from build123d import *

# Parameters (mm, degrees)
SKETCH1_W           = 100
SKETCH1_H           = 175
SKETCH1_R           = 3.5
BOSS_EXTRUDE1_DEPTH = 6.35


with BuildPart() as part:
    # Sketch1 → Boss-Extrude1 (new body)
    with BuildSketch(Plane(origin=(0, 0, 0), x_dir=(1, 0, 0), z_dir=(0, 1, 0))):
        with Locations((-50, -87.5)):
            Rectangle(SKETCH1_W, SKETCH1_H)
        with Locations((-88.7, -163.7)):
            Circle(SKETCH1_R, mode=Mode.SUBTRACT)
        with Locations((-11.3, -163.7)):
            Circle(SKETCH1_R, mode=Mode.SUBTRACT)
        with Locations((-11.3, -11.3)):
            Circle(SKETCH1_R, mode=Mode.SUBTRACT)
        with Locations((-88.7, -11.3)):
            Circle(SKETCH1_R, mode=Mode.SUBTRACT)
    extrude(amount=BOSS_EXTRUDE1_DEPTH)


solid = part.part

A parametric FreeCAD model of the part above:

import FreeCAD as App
import Part
import Sketcher
from FreeCAD import Vector
Q = App.Units.Quantity


def add_polygon(sketch, points):
    """Adds a closed chain of lines whose ends are joined by coincident constraints."""
    first, n = sketch.GeometryCount, len(points)
    for a, b in zip(points, points[1:] + points[:1]):
        sketch.addGeometry(Part.LineSegment(App.Vector(*a, 0), App.Vector(*b, 0)), False)
    for i in range(n):
        sketch.addConstraint(Sketcher.Constraint("Coincident", first + i, 2, first + (i + 1) % n, 1))

doc = App.newDocument("Part")
params = doc.addObject("Spreadsheet::Sheet", "Params")
for row, (alias, value) in enumerate([
    ("sketch1_diameter", "7 mm"),
    ("sketch1_width", "100 mm"),
    ("sketch1_height", "175 mm"),
    ("pad1_length", "6.35 mm"),
], start=1):
    params.set(f"A{row}", alias)
    params.set(f"B{row}", "=" + value)
    params.setAlias(f"B{row}", alias)

body = doc.addObject("PartDesign::Body", "Body")

sketch1 = body.newObject("Sketcher::SketchObject", "Sketch")
sketch1.AttachmentSupport = (doc.getObject("XZ_Plane"), [""])
sketch1.MapMode = "FlatFace"
add_polygon(sketch1, [(-100, 0), (-100, 175), (0, 175), (0, 0)])
sketch1.addGeometry(Part.Circle(Vector(-88.7, 163.7, 0), Vector(0, 0, 1), 3.5), False)
sketch1.addGeometry(Part.Circle(Vector(-11.3, 163.7, 0), Vector(0, 0, 1), 3.5), False)
sketch1.addGeometry(Part.Circle(Vector(-88.7, 11.3, 0), Vector(0, 0, 1), 3.5), False)
sketch1.addGeometry(Part.Circle(Vector(-11.3, 11.3, 0), Vector(0, 0, 1), 3.5), False)
sketch1.addConstraint(Sketcher.Constraint("Vertical", 0))
sketch1.addConstraint(Sketcher.Constraint("Horizontal", 1))
sketch1.addConstraint(Sketcher.Constraint("Vertical", 2))
sketch1.addConstraint(Sketcher.Constraint("Horizontal", 3))
sketch1.addConstraint(Sketcher.Constraint("Coincident", 2, 2, -1, 1))
sketch1.addConstraint(Sketcher.Constraint("Equal", 4, 5))
sketch1.addConstraint(Sketcher.Constraint("Equal", 5, 6))
sketch1.addConstraint(Sketcher.Constraint("Equal", 6, 7))
sketch1.addConstraint(Sketcher.Constraint("Horizontal", 4, 3, 5, 3))
sketch1.addConstraint(Sketcher.Constraint("Horizontal", 6, 3, 7, 3))
sketch1.addConstraint(Sketcher.Constraint("Vertical", 4, 3, 6, 3))
sketch1.addConstraint(Sketcher.Constraint("Vertical", 5, 3, 7, 3))
sketch1.addConstraint(Sketcher.Constraint("Diameter", 4, Q("7 mm")))
sketch1.addConstraint(Sketcher.Constraint("DistanceX", 1, 1, 1, 2, Q("100 mm")))
sketch1.addConstraint(Sketcher.Constraint("DistanceY", 0, 1, 0, 2, Q("175 mm")))
sketch1.addConstraint(Sketcher.Constraint("DistanceX", 4, 3, -1, 1, Q("88.7 mm")))
sketch1.addConstraint(Sketcher.Constraint("DistanceY", -1, 1, 4, 3, Q("163.7 mm")))
sketch1.addConstraint(Sketcher.Constraint("DistanceX", 5, 3, -1, 1, Q("11.3 mm")))
sketch1.addConstraint(Sketcher.Constraint("DistanceY", -1, 1, 6, 3, Q("11.3 mm")))
sketch1.setExpression("Constraints[16]", "Params.sketch1_diameter")
sketch1.setExpression("Constraints[17]", "Params.sketch1_width")
sketch1.setExpression("Constraints[18]", "Params.sketch1_height")
pad1 = body.newObject("PartDesign::Pad", "Pad")
pad1.Profile = sketch1
pad1.setExpression("Length", "Params.pad1_length")
pad1.Reversed = True

doc.recompute()
